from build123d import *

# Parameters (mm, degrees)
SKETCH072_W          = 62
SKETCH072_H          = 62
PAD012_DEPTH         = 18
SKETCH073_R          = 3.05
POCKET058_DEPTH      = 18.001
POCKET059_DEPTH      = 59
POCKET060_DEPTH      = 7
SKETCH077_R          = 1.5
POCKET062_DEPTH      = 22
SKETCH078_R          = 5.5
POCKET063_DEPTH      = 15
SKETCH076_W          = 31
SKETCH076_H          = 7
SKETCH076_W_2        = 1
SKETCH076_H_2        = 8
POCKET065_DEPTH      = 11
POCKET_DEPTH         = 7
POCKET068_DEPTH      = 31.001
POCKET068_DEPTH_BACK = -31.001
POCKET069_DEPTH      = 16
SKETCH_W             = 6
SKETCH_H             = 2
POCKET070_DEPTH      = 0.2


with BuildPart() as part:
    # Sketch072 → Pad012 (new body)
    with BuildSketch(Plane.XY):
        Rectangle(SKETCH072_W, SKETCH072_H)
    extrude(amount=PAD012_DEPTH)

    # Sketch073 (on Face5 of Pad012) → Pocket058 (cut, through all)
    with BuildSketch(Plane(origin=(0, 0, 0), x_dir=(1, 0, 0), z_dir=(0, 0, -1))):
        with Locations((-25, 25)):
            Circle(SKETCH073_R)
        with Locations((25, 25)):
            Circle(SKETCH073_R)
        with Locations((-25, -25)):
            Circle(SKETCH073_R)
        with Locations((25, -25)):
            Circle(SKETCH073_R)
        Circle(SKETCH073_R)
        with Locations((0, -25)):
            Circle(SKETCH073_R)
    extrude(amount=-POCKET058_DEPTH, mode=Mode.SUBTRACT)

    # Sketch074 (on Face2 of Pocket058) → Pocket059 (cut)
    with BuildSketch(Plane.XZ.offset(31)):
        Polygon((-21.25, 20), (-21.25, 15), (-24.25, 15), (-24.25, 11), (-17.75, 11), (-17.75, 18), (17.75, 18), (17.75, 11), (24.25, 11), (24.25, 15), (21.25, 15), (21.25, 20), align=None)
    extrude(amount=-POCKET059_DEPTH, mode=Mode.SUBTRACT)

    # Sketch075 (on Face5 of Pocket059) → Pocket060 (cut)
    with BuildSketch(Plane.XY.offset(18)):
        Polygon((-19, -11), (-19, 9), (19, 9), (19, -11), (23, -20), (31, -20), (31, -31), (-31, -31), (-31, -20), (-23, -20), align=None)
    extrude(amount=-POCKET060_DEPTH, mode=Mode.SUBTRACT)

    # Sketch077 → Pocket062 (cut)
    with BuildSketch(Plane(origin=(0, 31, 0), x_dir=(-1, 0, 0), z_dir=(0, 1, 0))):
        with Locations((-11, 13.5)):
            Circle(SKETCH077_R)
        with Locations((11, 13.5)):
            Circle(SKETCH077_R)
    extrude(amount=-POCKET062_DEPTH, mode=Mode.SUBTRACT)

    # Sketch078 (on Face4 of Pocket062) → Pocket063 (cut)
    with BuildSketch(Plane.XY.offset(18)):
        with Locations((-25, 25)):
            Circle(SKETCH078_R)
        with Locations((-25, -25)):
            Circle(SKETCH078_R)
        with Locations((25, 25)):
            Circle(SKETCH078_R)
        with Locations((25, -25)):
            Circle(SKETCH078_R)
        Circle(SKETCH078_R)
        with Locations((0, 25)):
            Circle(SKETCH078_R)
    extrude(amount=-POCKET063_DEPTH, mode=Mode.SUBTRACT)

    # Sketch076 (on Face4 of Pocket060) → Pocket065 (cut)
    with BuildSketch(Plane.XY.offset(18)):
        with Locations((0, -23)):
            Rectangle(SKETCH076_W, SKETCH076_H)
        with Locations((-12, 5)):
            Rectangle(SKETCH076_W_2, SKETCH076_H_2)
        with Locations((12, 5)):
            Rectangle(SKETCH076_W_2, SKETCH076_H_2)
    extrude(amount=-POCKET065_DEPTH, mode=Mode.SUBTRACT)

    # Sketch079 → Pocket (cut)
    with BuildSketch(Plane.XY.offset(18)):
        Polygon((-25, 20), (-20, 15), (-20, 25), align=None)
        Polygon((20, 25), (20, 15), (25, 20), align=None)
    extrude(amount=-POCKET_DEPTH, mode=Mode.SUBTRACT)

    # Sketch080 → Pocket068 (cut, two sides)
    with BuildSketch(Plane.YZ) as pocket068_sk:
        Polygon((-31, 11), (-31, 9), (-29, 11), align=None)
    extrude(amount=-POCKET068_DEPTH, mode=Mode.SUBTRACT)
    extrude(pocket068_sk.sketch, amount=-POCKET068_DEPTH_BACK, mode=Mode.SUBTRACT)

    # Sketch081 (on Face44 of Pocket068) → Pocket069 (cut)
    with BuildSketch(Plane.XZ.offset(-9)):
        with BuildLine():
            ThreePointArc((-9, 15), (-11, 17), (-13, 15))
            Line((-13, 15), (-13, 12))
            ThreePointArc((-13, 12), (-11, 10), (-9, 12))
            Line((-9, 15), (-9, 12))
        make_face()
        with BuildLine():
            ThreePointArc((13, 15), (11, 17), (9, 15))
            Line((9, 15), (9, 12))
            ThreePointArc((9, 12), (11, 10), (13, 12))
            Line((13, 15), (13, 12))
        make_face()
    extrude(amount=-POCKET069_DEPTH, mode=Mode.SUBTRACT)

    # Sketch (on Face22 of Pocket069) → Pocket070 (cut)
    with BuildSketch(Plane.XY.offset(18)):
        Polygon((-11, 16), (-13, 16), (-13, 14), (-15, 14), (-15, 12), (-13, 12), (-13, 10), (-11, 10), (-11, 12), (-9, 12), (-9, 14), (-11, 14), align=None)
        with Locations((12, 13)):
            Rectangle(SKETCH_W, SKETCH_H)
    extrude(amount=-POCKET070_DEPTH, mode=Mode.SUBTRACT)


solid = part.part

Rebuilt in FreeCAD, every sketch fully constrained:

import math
import FreeCAD as App
import Part
import Sketcher
Q = App.Units.Quantity


def add_polygon(sketch, points):
    """Adds a closed chain of lines whose ends are joined by coincident constraints."""
    first, n = sketch.GeometryCount, len(points)
    for a, b in zip(points, points[1:] + points[:1]):
        sketch.addGeometry(Part.LineSegment(App.Vector(*a, 0), App.Vector(*b, 0)), False)
    for i in range(n):
        sketch.addConstraint(Sketcher.Constraint("Coincident", first + i, 2, first + (i + 1) % n, 1))

doc = App.newDocument("Part")
params = doc.addObject("Spreadsheet::Sheet", "Params")
for row, (alias, value) in enumerate([
    ("sketch1_width", "62 mm"),
    ("pad1_length", "18 mm"),
    ("sketch2_diameter", "6.1 mm"),
    ("sketch3_width", "3 mm"),
    ("sketch3_height", "5 mm"),
    ("sketch3_height2", "4 mm"),
    ("sketch3_height3", "7 mm"),
    ("sketch3_width2", "6.5 mm"),
    ("pocket2_length", "59 mm"),
    ("sketch4_width", "8 mm"),
    ("sketch4_width2", "62 mm"),
    ("sketch4_width3", "38 mm"),
    ("sketch4_height", "20 mm"),
    ("sketch4_height2", "11 mm"),
    ("pocket3_length", "7 mm"),
    ("sketch5_diameter", "3 mm"),
    ("pocket4_length", "22 mm"),
    ("sketch6_diameter", "11 mm"),
    ("pocket5_length", "15 mm"),
    ("sketch7_width", "31 mm"),
    ("sketch7_width2", "1 mm"),
    ("sketch7_height", "7 mm"),
    ("sketch7_height2", "8 mm"),
    ("pocket6_length", "11 mm"),
    ("sketch8_height", "10 mm"),
    ("pocket7_length", "7 mm"),
    ("sketch9_width", "2 mm"),
    ("sketch10_radius", "2 mm"),
    ("sketch10_height", "3 mm"),
    ("pocket9_length", "16 mm"),
    ("sketch11_width", "2 mm"),
    ("pocket10_length", "0.2 mm"),
], start=1):
    params.set(f"A{row}", alias)
    params.set(f"B{row}", "=" + value)
    params.setAlias(f"B{row}", alias)

body = doc.addObject("PartDesign::Body", "Body")

# Sketch on XY plane
sketch1 = body.newObject("Sketcher::SketchObject", "Sketch")
sketch1.AttachmentSupport = (doc.getObject("XY_Plane"), [""])
sketch1.MapMode = "FlatFace"
add_polygon(sketch1, [(-31, 31), (-31, -31), (31, -31), (31, 31)])  # lines 0-3
sketch1.addConstraint(Sketcher.Constraint("Vertical", 0))
sketch1.addConstraint(Sketcher.Constraint("Horizontal", 1))
sketch1.addConstraint(Sketcher.Constraint("Vertical", 2))
sketch1.addConstraint(Sketcher.Constraint("Horizontal", 3))
sketch1.addConstraint(Sketcher.Constraint("Symmetric", 0, 2, 2, 2, -1, 1))
sketch1.addConstraint(Sketcher.Constraint("Equal", 3, 0))
sketch1.addConstraint(Sketcher.Constraint("DistanceX", 1, 1, 1, 2, Q("62 mm")))
sketch1.setExpression("Constraints[10]", "Params.sketch1_width")
pad1 = body.newObject("PartDesign::Pad", "Pad")
pad1.Profile = sketch1
pad1.setExpression("Length", "Params.pad1_length")

# Sketch on XY plane
sketch2 = body.newObject("Sketcher::SketchObject", "Sketch001")
sketch2.AttachmentSupport = (doc.getObject("XY_Plane"), [""])
sketch2.MapMode = "FlatFace"
sketch2.addGeometry(Part.Circle(App.Vector(-25, -25, 0), App.Vector(0, 0, 1), 3.05), False)
sketch2.addGeometry(Part.Circle(App.Vector(25, -25, 0), App.Vector(0, 0, 1), 3.05), False)
sketch2.addGeometry(Part.Circle(App.Vector(-25, 25, 0), App.Vector(0, 0, 1), 3.05), False)
sketch2.addGeometry(Part.Circle(App.Vector(25, 25, 0), App.Vector(0, 0, 1), 3.05), False)
sketch2.addGeometry(Part.Circle(App.Vector(0, 0, 0), App.Vector(0, 0, 1), 3.05), False)
sketch2.addGeometry(Part.Circle(App.Vector(0, 25, 0), App.Vector(0, 0, 1), 3.05), False)
sketch2.addConstraint(Sketcher.Constraint("Coincident", 4, 3, -1, 1))
sketch2.addConstraint(Sketcher.Constraint("Equal", 0, 1))
sketch2.addConstraint(Sketcher.Constraint("Equal", 1, 2))
sketch2.addConstraint(Sketcher.Constraint("Equal", 2, 3))
sketch2.addConstraint(Sketcher.Constraint("Equal", 3, 4))
sketch2.addConstraint(Sketcher.Constraint("Equal", 4, 5))
sketch2.addConstraint(Sketcher.Constraint("Symmetric", 1, 3, 2, 3, -1, 1))
sketch2.addConstraint(Sketcher.Constraint("Symmetric", 0, 3, 3, 3, -1, 1))
sketch2.addConstraint(Sketcher.Constraint("Symmetric", 0, 3, 1, 3, -2))
sketch2.addConstraint(Sketcher.Constraint("PointOnObject", 5, 3, -2))
sketch2.addConstraint(Sketcher.Constraint("Horizontal", 3, 3, 5, 3))
sketch2.addConstraint(Sketcher.Constraint("Diameter", 0, Q("6.1 mm")))
sketch2.addConstraint(Sketcher.Constraint("DistanceX", 0, 3, -1, 1, Q("25 mm")))
sketch2.addConstraint(Sketcher.Constraint("DistanceY", 0, 3, -1, 1, Q("25 mm")))
sketch2.setExpression("Constraints[11]", "Params.sketch2_diameter")
pocket1 = body.newObject("PartDesign::Pocket", "Pocket")
pocket1.Profile = sketch2
pocket1.Type = "ThroughAll"
pocket1.Reversed = True

# Sketch on XZ plane
sketch3 = body.newObject("Sketcher::SketchObject", "Sketch002")
sketch3.AttachmentSupport = (doc.getObject("XZ_Plane"), [""])
sketch3.MapMode = "FlatFace"
sketch3.AttachmentOffset = App.Placement(App.Vector(0, 0, 31), App.Rotation())
add_polygon(sketch3, [(-21.25, 20), (-21.25, 15), (-24.25, 15), (-24.25, 11), (-17.75, 11), (-17.75, 18), (17.75, 18), (17.75, 11), (24.25, 11), (24.25, 15), (21.25, 15), (21.25, 20)])  # lines 0-11
sketch3.addConstraint(Sketcher.Constraint("Vertical", 0))
sketch3.addConstraint(Sketcher.Constraint("Horizontal", 1))
sketch3.addConstraint(Sketcher.Constraint("Vertical", 2))
sketch3.addConstraint(Sketcher.Constraint("Horizontal", 3))
sketch3.addConstraint(Sketcher.Constraint("Vertical", 4))
sketch3.addConstraint(Sketcher.Constraint("Horizontal", 5))
sketch3.addConstraint(Sketcher.Constraint("Vertical", 6))
sketch3.addConstraint(Sketcher.Constraint("Horizontal", 7))
sketch3.addConstraint(Sketcher.Constraint("Vertical", 8))
sketch3.addConstraint(Sketcher.Constraint("Horizontal", 9))
sketch3.addConstraint(Sketcher.Constraint("Vertical", 10))
sketch3.addConstraint(Sketcher.Constraint("Horizontal", 11))
sketch3.addConstraint(Sketcher.Constraint("Symmetric", 3, 2, 6, 2, -2))
sketch3.addConstraint(Sketcher.Constraint("Symmetric", 1, 2, 8, 2, -2))
sketch3.addConstraint(Sketcher.Constraint("Equal", 1, 9))
sketch3.addConstraint(Sketcher.Constraint("DistanceX", 1, 2, 1, 1, Q("3 mm")))
sketch3.addConstraint(Sketcher.Constraint("DistanceY", 0, 2, 0, 1, Q("5 mm")))
sketch3.addConstraint(Sketcher.Constraint("DistanceY", 2, 2, 2, 1, Q("4 mm")))
sketch3.addConstraint(Sketcher.Constraint("DistanceY", 4, 1, 4, 2, Q("7 mm")))
sketch3.addConstraint(Sketcher.Constraint("DistanceX", 3, 1, 3, 2, Q("6.5 mm")))
sketch3.addConstraint(Sketcher.Constraint("DistanceX", 5, 1, 5, 2, Q("35.5 mm")))
sketch3.addConstraint(Sketcher.Constraint("DistanceY", -1, 1, 0, 2, Q("15 mm")))
sketch3.setExpression("Constraints[27]", "Params.sketch3_width")
sketch3.setExpression("Constraints[28]", "Params.sketch3_height")
sketch3.setExpression("Constraints[29]", "Params.sketch3_height2")
sketch3.setExpression("Constraints[30]", "Params.sketch3_height3")
sketch3.setExpression("Constraints[31]", "Params.sketch3_width2")
pocket2 = body.newObject("PartDesign::Pocket", "Pocket001")
pocket2.Profile = sketch3
pocket2.setExpression("Length", "Params.pocket2_length")

# Sketch on XY plane
sketch4 = body.newObject("Sketcher::SketchObject", "Sketch003")
sketch4.AttachmentSupport = (doc.getObject("XY_Plane"), [""])
sketch4.MapMode = "FlatFace"
sketch4.AttachmentOffset = App.Placement(App.Vector(0, 0, 18), App.Rotation())
add_polygon(sketch4, [(-19, 9), (-19, -11), (-23, -20), (-31, -20), (-31, -31), (31, -31), (31, -20), (23, -20), (19, -11), (19, 9)])  # lines 0-9
sketch4.addConstraint(Sketcher.Constraint("Vertical", 0))
sketch4.addConstraint(Sketcher.Constraint("Horizontal", 2))
sketch4.addConstraint(Sketcher.Constraint("Vertical", 3))
sketch4.addConstraint(Sketcher.Constraint("Horizontal", 4))
sketch4.addConstraint(Sketcher.Constraint("Vertical", 5))
sketch4.addConstraint(Sketcher.Constraint("Horizontal", 6))
sketch4.addConstraint(Sketcher.Constraint("Vertical", 8))
sketch4.addConstraint(Sketcher.Constraint("Horizontal", 9))
sketch4.addConstraint(Sketcher.Constraint("Symmetric", 2, 2, 5, 2, -2))
sketch4.addConstraint(Sketcher.Constraint("Symmetric", 0, 2, 7, 2, -2))
sketch4.addConstraint(Sketcher.Constraint("Equal", 2, 6))
sketch4.addConstraint(Sketcher.Constraint("DistanceX", 2, 2, 2, 1, Q("8 mm")))
sketch4.addConstraint(Sketcher.Constraint("DistanceX", 4, 1, 4, 2, Q("62 mm")))
sketch4.addConstraint(Sketcher.Constraint("DistanceX", 9, 2, 9, 1, Q("38 mm")))
sketch4.addConstraint(Sketcher.Constraint("DistanceY", 0, 2, 0, 1, Q("20 mm")))
sketch4.addConstraint(Sketcher.Constraint("DistanceY", 3, 2, 3, 1, Q("11 mm")))
sketch4.addConstraint(Sketcher.Constraint("DistanceY", 0, 2, -1, 1, Q("11 mm")))
sketch4.addConstraint(Sketcher.Constraint("DistanceY", 1, 2, -1, 1, Q("20 mm")))
sketch4.setExpression("Constraints[21]", "Params.sketch4_width")
sketch4.setExpression("Constraints[22]", "Params.sketch4_width2")
sketch4.setExpression("Constraints[23]", "Params.sketch4_width3")
sketch4.setExpression("Constraints[24]", "Params.sketch4_height")
sketch4.setExpression("Constraints[25]", "Params.sketch4_height2")
pocket3 = body.newObject("PartDesign::Pocket", "Pocket002")
pocket3.Profile = sketch4
pocket3.setExpression("Length", "Params.pocket3_length")

# Sketch on XZ plane
sketch5 = body.newObject("Sketcher::SketchObject", "Sketch004")
sketch5.AttachmentSupport = (doc.getObject("XZ_Plane"), [""])
sketch5.MapMode = "FlatFace"
sketch5.AttachmentOffset = App.Placement(App.Vector(0, 0, -31), App.Rotation())
sketch5.addGeometry(Part.Circle(App.Vector(11, 13.5, 0), App.Vector(0, 0, 1), 1.5), False)
sketch5.addGeometry(Part.Circle(App.Vector(-11, 13.5, 0), App.Vector(0, 0, 1), 1.5), False)
sketch5.addConstraint(Sketcher.Constraint("Equal", 0, 1))
sketch5.addConstraint(Sketcher.Constraint("Symmetric", 0, 3, 1, 3, -2))
sketch5.addConstraint(Sketcher.Constraint("Diameter", 0, Q("3 mm")))
sketch5.addConstraint(Sketcher.Constraint("DistanceX", -1, 1, 0, 3, Q("11 mm")))
sketch5.addConstraint(Sketcher.Constraint("DistanceY", -1, 1, 0, 3, Q("13.5 mm")))
sketch5.setExpression("Constraints[2]", "Params.sketch5_diameter")
pocket4 = body.newObject("PartDesign::Pocket", "Pocket003")
pocket4.Profile = sketch5
pocket4.setExpression("Length", "Params.pocket4_length")
pocket4.Reversed = True

# Sketch on XY plane
sketch6 = body.newObject("Sketcher::SketchObject", "Sketch005")
sketch6.AttachmentSupport = (doc.getObject("XY_Plane"), [""])
sketch6.MapMode = "FlatFace"
sketch6.AttachmentOffset = App.Placement(App.Vector(0, 0, 18), App.Rotation())
sketch6.addGeometry(Part.Circle(App.Vector(-25, 25, 0), App.Vector(0, 0, 1), 5.5), False)
sketch6.addGeometry(Part.Circle(App.Vector(-25, -25, 0), App.Vector(0, 0, 1), 5.5), False)
sketch6.addGeometry(Part.Circle(App.Vector(25, 25, 0), App.Vector(0, 0, 1), 5.5), False)
sketch6.addGeometry(Part.Circle(App.Vector(25, -25, 0), App.Vector(0, 0, 1), 5.5), False)
sketch6.addGeometry(Part.Circle(App.Vector(0, 0, 0), App.Vector(0, 0, 1), 5.5), False)
sketch6.addGeometry(Part.Circle(App.Vector(0, 25, 0), App.Vector(0, 0, 1), 5.5), False)
sketch6.addConstraint(Sketcher.Constraint("Coincident", 4, 3, -1, 1))
sketch6.addConstraint(Sketcher.Constraint("Equal", 0, 1))
sketch6.addConstraint(Sketcher.Constraint("Equal", 1, 2))
sketch6.addConstraint(Sketcher.Constraint("Equal", 2, 3))
sketch6.addConstraint(Sketcher.Constraint("Equal", 3, 4))
sketch6.addConstraint(Sketcher.Constraint("Equal", 4, 5))
sketch6.addConstraint(Sketcher.Constraint("Symmetric", 1, 3, 2, 3, -1, 1))
sketch6.addConstraint(Sketcher.Constraint("Symmetric", 0, 3, 3, 3, -1, 1))
sketch6.addConstraint(Sketcher.Constraint("Symmetric", 0, 3, 2, 3, -2))
sketch6.addConstraint(Sketcher.Constraint("PointOnObject", 5, 3, -2))
sketch6.addConstraint(Sketcher.Constraint("Horizontal", 2, 3, 5, 3))
sketch6.addConstraint(Sketcher.Constraint("Diameter", 0, Q("11 mm")))
sketch6.addConstraint(Sketcher.Constraint("DistanceX", 0, 3, -1, 1, Q("25 mm")))
sketch6.addConstraint(Sketcher.Constraint("DistanceY", -1, 1, 0, 3, Q("25 mm")))
sketch6.setExpression("Constraints[11]", "Params.sketch6_diameter")
pocket5 = body.newObject("PartDesign::Pocket", "Pocket004")
pocket5.Profile = sketch6
pocket5.setExpression("Length", "Params.pocket5_length")

# Sketch on XY plane
sketch7 = body.newObject("Sketcher::SketchObject", "Sketch006")
sketch7.AttachmentSupport = (doc.getObject("XY_Plane"), [""])
sketch7.MapMode = "FlatFace"
sketch7.AttachmentOffset = App.Placement(App.Vector(0, 0, 18), App.Rotation())
add_polygon(sketch7, [(-15.5, -19.5), (-15.5, -26.5), (15.5, -26.5), (15.5, -19.5)])  # lines 0-3
add_polygon(sketch7, [(-12.5, 9), (-12.5, 1), (-11.5, 1), (-11.5, 9)])  # lines 4-7
add_polygon(sketch7, [(11.5, 9), (11.5, 1), (12.5, 1), (12.5, 9)])  # lines 8-11
sketch7.addConstraint(Sketcher.Constraint("Vertical", 0))
sketch7.addConstraint(Sketcher.Constraint("Horizontal", 1))
sketch7.addConstraint(Sketcher.Constraint("Vertical", 2))
sketch7.addConstraint(Sketcher.Constraint("Horizontal", 3))
sketch7.addConstraint(Sketcher.Constraint("Vertical", 4))
sketch7.addConstraint(Sketcher.Constraint("Horizontal", 5))
sketch7.addConstraint(Sketcher.Constraint("Vertical", 6))
sketch7.addConstraint(Sketcher.Constraint("Horizontal", 7))
sketch7.addConstraint(Sketcher.Constraint("Vertical", 8))
sketch7.addConstraint(Sketcher.Constraint("Horizontal", 9))
sketch7.addConstraint(Sketcher.Constraint("Vertical", 10))
sketch7.addConstraint(Sketcher.Constraint("Horizontal", 11))
sketch7.addConstraint(Sketcher.Constraint("Symmetric", 5, 2, 8, 2, -2))
sketch7.addConstraint(Sketcher.Constraint("Symmetric", 7, 2, 10, 2, -2))
sketch7.addConstraint(Sketcher.Constraint("DistanceX", 1, 1, 1, 2, Q("31 mm")))
sketch7.addConstraint(Sketcher.Constraint("DistanceX", 5, 1, 5, 2, Q("1 mm")))
sketch7.addConstraint(Sketcher.Constraint("DistanceY", 0, 2, 0, 1, Q("7 mm")))
sketch7.addConstraint(Sketcher.Constraint("DistanceY", 4, 2, 4, 1, Q("8 mm")))
sketch7.addConstraint(Sketcher.Constraint("DistanceY", -1, 1, 4, 2, Q("1 mm")))
sketch7.addConstraint(Sketcher.Constraint("DistanceX", 3, 2, 4, 2, Q("3 mm")))
sketch7.addConstraint(Sketcher.Constraint("DistanceX", 8, 2, 2, 2, Q("4 mm")))
sketch7.addConstraint(Sketcher.Constraint("DistanceY", 0, 2, -1, 1, Q("26.5 mm")))
sketch7.setExpression("Constraints[26]", "Params.sketch7_width")
sketch7.setExpression("Constraints[27]", "Params.sketch7_width2")
sketch7.setExpression("Constraints[28]", "Params.sketch7_height")
sketch7.setExpression("Constraints[29]", "Params.sketch7_height2")
pocket6 = body.newObject("PartDesign::Pocket", "Pocket005")
pocket6.Profile = sketch7
pocket6.setExpression("Length", "Params.pocket6_length")

# Sketch on XY plane
sketch8 = body.newObject("Sketcher::SketchObject", "Sketch007")
sketch8.AttachmentSupport = (doc.getObject("XY_Plane"), [""])
sketch8.MapMode = "FlatFace"
sketch8.AttachmentOffset = App.Placement(App.Vector(0, 0, 18), App.Rotation())
add_polygon(sketch8, [(-25, 20), (-20, 15), (-20, 25)])  # lines 0-2
add_polygon(sketch8, [(20, 25), (20, 15), (25, 20)])  # lines 3-5
sketch8.addConstraint(Sketcher.Constraint("Vertical", 1))
sketch8.addConstraint(Sketcher.Constraint("Vertical", 3))
sketch8.addConstraint(Sketcher.Constraint("Symmetric", 0, 2, 3, 2, -2))
sketch8.addConstraint(Sketcher.Constraint("Symmetric", 2, 2, 4, 2, -2))
sketch8.addConstraint(Sketcher.Constraint("Perpendicular", 0, 2))
sketch8.addConstraint(Sketcher.Constraint("Parallel", 2, 4))
sketch8.addConstraint(Sketcher.Constraint("Perpendicular", 4, 5))
sketch8.addConstraint(Sketcher.Constraint("DistanceY", 1, 1, 1, 2, Q("10 mm")))
sketch8.addConstraint(Sketcher.Constraint("DistanceX", 0, 2, -1, 1, Q("20 mm")))
sketch8.addConstraint(Sketcher.Constraint("DistanceY", -1, 1, 0, 2, Q("15 mm")))
sketch8.setExpression("Constraints[13]", "Params.sketch8_height")
pocket7 = body.newObject("PartDesign::Pocket", "Pocket006")
pocket7.Profile = sketch8
pocket7.setExpression("Length", "Params.pocket7_length")

# Sketch on YZ plane
sketch9 = body.newObject("Sketcher::SketchObject", "Sketch008")
sketch9.AttachmentSupport = (doc.getObject("YZ_Plane"), [""])
sketch9.MapMode = "FlatFace"
add_polygon(sketch9, [(-31, 11), (-31, 9), (-29, 11)])  # lines 0-2
sketch9.addConstraint(Sketcher.Constraint("Vertical", 0))
sketch9.addConstraint(Sketcher.Constraint("Horizontal", 2))
sketch9.addConstraint(Sketcher.Constraint("Equal", 2, 0))
sketch9.addConstraint(Sketcher.Constraint("DistanceX", 2, 2, 2, 1, Q("2 mm")))
sketch9.addConstraint(Sketcher.Constraint("DistanceX", 0, 2, -1, 1, Q("31 mm")))
sketch9.addConstraint(Sketcher.Constraint("DistanceY", -1, 1, 0, 2, Q("9 mm")))
sketch9.setExpression("Constraints[6]", "Params.sketch9_width")
pocket8 = body.newObject("PartDesign::Pocket", "Pocket007")
pocket8.Profile = sketch9
pocket8.Type = "ThroughAll"
pocket8.Midplane = True

# Sketch on XZ plane
sketch10 = body.newObject("Sketcher::SketchObject", "Sketch009")
sketch10.AttachmentSupport = (doc.getObject("XZ_Plane"), [""])
sketch10.MapMode = "FlatFace"
sketch10.AttachmentOffset = App.Placement(App.Vector(0, 0, -9), App.Rotation())
sketch10.addGeometry(Part.ArcOfCircle(Part.Circle(App.Vector(-11, 15, 0), App.Vector(0, 0, 1), 2), math.radians(0), math.radians(180)), False)
sketch10.addGeometry(Part.LineSegment(App.Vector(-13, 15, 0), App.Vector(-13, 12, 0)), False)
sketch10.addGeometry(Part.ArcOfCircle(Part.Circle(App.Vector(-11, 12, 0), App.Vector(0, 0, 1), 2), math.radians(180), math.radians(360)), False)
sketch10.addGeometry(Part.LineSegment(App.Vector(-9, 12, 0), App.Vector(-9, 15, 0)), False)
sketch10.addGeometry(Part.ArcOfCircle(Part.Circle(App.Vector(11, 15, 0), App.Vector(0, 0, 1), 2), math.radians(0), math.radians(180)), False)
sketch10.addGeometry(Part.LineSegment(App.Vector(9, 15, 0), App.Vector(9, 12, 0)), False)
sketch10.addGeometry(Part.ArcOfCircle(Part.Circle(App.Vector(11, 12, 0), App.Vector(0, 0, 1), 2), math.radians(180), math.radians(360)), False)
sketch10.addGeometry(Part.LineSegment(App.Vector(13, 12, 0), App.Vector(13, 15, 0)), False)
sketch10.addConstraint(Sketcher.Constraint("Tangent", 0, 2, 1, 1))
sketch10.addConstraint(Sketcher.Constraint("Tangent", 1, 2, 2, 1))
sketch10.addConstraint(Sketcher.Constraint("Tangent", 2, 2, 3, 1))
sketch10.addConstraint(Sketcher.Constraint("Tangent", 3, 2, 0, 1))
sketch10.addConstraint(Sketcher.Constraint("Tangent", 4, 2, 5, 1))
sketch10.addConstraint(Sketcher.Constraint("Tangent", 5, 2, 6, 1))
sketch10.addConstraint(Sketcher.Constraint("Tangent", 6, 2, 7, 1))
sketch10.addConstraint(Sketcher.Constraint("Tangent", 7, 2, 4, 1))
sketch10.addConstraint(Sketcher.Constraint("Vertical", 1))
sketch10.addConstraint(Sketcher.Constraint("Vertical", 3))
sketch10.addConstraint(Sketcher.Constraint("Vertical", 5))
sketch10.addConstraint(Sketcher.Constraint("Vertical", 7))
sketch10.addConstraint(Sketcher.Constraint("Equal", 2, 4))
sketch10.addConstraint(Sketcher.Constraint("Symmetric", 0, 3, 4, 3, -2))
sketch10.addConstraint(Sketcher.Constraint("Horizontal", 2, 3, 6, 3))
sketch10.addConstraint(Sketcher.Constraint("Radius", 0, Q("2 mm")))
sketch10.addConstraint(Sketcher.Constraint("DistanceY", 1, 2, 1, 1, Q("3 mm")))
sketch10.addConstraint(Sketcher.Constraint("DistanceX", 0, 3, -1, 1, Q("11 mm")))
sketch10.addConstraint(Sketcher.Constraint("DistanceY", -1, 1, 0, 3, Q("15 mm")))
sketch10.setExpression("Constraints[15]", "Params.sketch10_radius")
sketch10.setExpression("Constraints[16]", "Params.sketch10_height")
pocket9 = body.newObject("PartDesign::Pocket", "Pocket008")
pocket9.Profile = sketch10
pocket9.setExpression("Length", "Params.pocket9_length")

# Sketch on XY plane
sketch11 = body.newObject("Sketcher::SketchObject", "Sketch010")
sketch11.AttachmentSupport = (doc.getObject("XY_Plane"), [""])
sketch11.MapMode = "FlatFace"
sketch11.AttachmentOffset = App.Placement(App.Vector(0, 0, 18), App.Rotation())
add_polygon(sketch11, [(-11, 16), (-13, 16), (-13, 14), (-15, 14), (-15, 12), (-13, 12), (-13, 10), (-11, 10), (-11, 12), (-9, 12), (-9, 14), (-11, 14)])  # lines 0-11
add_polygon(sketch11, [(9, 14), (9, 12), (15, 12), (15, 14)])  # lines 12-15
sketch11.addConstraint(Sketcher.Constraint("Horizontal", 0))
sketch11.addConstraint(Sketcher.Constraint("Vertical", 1))
sketch11.addConstraint(Sketcher.Constraint("Horizontal", 2))
sketch11.addConstraint(Sketcher.Constraint("Vertical", 3))
sketch11.addConstraint(Sketcher.Constraint("Horizontal", 4))
sketch11.addConstraint(Sketcher.Constraint("Vertical", 5))
sketch11.addConstraint(Sketcher.Constraint("Horizontal", 6))
sketch11.addConstraint(Sketcher.Constraint("Vertical", 7))
sketch11.addConstraint(Sketcher.Constraint("Horizontal", 8))
sketch11.addConstraint(Sketcher.Constraint("Vertical", 9))
sketch11.addConstraint(Sketcher.Constraint("Horizontal", 10))
sketch11.addConstraint(Sketcher.Constraint("Vertical", 11))
sketch11.addConstraint(Sketcher.Constraint("Vertical", 12))
sketch11.addConstraint(Sketcher.Constraint("Horizontal", 13))
sketch11.addConstraint(Sketcher.Constraint("Vertical", 14))
sketch11.addConstraint(Sketcher.Constraint("Horizontal", 15))
sketch11.addConstraint(Sketcher.Constraint("Symmetric", 8, 2, 12, 2, -2))
sketch11.addConstraint(Sketcher.Constraint("Symmetric", 3, 2, 13, 2, -2))
sketch11.addConstraint(Sketcher.Constraint("Horizontal", 2, 2, 9, 2))
sketch11.addConstraint(Sketcher.Constraint("Horizontal", 10, 2, 14, 2))
sketch11.addConstraint(Sketcher.Constraint("Vertical", 1, 2, 4, 2))
sketch11.addConstraint(Sketcher.Constraint("Vertical", 7, 2, 10, 2))
sketch11.addConstraint(Sketcher.Constraint("Equal", 0, 2))
sketch11.addConstraint(Sketcher.Constraint("Equal", 6, 8))
sketch11.addConstraint(Sketcher.Constraint("Equal", 10, 1))
sketch11.addConstraint(Sketcher.Constraint("Equal", 1, 3))
sketch11.addConstraint(Sketcher.Constraint("Equal", 3, 5))
sketch11.addConstraint(Sketcher.Constraint("DistanceX", 0, 2, 0, 1, Q("2 mm")))
sketch11.addConstraint(Sketcher.Constraint("DistanceX", 0, 2, -1, 1, Q("13 mm")))
sketch11.addConstraint(Sketcher.Constraint("DistanceY", -1, 1, 0, 2, Q("16 mm")))
sketch11.setExpression("Constraints[43]", "Params.sketch11_width")
pocket10 = body.newObject("PartDesign::Pocket", "Pocket009")
pocket10.Profile = sketch11
pocket10.setExpression("Length", "Params.pocket10_length")

doc.recompute()
